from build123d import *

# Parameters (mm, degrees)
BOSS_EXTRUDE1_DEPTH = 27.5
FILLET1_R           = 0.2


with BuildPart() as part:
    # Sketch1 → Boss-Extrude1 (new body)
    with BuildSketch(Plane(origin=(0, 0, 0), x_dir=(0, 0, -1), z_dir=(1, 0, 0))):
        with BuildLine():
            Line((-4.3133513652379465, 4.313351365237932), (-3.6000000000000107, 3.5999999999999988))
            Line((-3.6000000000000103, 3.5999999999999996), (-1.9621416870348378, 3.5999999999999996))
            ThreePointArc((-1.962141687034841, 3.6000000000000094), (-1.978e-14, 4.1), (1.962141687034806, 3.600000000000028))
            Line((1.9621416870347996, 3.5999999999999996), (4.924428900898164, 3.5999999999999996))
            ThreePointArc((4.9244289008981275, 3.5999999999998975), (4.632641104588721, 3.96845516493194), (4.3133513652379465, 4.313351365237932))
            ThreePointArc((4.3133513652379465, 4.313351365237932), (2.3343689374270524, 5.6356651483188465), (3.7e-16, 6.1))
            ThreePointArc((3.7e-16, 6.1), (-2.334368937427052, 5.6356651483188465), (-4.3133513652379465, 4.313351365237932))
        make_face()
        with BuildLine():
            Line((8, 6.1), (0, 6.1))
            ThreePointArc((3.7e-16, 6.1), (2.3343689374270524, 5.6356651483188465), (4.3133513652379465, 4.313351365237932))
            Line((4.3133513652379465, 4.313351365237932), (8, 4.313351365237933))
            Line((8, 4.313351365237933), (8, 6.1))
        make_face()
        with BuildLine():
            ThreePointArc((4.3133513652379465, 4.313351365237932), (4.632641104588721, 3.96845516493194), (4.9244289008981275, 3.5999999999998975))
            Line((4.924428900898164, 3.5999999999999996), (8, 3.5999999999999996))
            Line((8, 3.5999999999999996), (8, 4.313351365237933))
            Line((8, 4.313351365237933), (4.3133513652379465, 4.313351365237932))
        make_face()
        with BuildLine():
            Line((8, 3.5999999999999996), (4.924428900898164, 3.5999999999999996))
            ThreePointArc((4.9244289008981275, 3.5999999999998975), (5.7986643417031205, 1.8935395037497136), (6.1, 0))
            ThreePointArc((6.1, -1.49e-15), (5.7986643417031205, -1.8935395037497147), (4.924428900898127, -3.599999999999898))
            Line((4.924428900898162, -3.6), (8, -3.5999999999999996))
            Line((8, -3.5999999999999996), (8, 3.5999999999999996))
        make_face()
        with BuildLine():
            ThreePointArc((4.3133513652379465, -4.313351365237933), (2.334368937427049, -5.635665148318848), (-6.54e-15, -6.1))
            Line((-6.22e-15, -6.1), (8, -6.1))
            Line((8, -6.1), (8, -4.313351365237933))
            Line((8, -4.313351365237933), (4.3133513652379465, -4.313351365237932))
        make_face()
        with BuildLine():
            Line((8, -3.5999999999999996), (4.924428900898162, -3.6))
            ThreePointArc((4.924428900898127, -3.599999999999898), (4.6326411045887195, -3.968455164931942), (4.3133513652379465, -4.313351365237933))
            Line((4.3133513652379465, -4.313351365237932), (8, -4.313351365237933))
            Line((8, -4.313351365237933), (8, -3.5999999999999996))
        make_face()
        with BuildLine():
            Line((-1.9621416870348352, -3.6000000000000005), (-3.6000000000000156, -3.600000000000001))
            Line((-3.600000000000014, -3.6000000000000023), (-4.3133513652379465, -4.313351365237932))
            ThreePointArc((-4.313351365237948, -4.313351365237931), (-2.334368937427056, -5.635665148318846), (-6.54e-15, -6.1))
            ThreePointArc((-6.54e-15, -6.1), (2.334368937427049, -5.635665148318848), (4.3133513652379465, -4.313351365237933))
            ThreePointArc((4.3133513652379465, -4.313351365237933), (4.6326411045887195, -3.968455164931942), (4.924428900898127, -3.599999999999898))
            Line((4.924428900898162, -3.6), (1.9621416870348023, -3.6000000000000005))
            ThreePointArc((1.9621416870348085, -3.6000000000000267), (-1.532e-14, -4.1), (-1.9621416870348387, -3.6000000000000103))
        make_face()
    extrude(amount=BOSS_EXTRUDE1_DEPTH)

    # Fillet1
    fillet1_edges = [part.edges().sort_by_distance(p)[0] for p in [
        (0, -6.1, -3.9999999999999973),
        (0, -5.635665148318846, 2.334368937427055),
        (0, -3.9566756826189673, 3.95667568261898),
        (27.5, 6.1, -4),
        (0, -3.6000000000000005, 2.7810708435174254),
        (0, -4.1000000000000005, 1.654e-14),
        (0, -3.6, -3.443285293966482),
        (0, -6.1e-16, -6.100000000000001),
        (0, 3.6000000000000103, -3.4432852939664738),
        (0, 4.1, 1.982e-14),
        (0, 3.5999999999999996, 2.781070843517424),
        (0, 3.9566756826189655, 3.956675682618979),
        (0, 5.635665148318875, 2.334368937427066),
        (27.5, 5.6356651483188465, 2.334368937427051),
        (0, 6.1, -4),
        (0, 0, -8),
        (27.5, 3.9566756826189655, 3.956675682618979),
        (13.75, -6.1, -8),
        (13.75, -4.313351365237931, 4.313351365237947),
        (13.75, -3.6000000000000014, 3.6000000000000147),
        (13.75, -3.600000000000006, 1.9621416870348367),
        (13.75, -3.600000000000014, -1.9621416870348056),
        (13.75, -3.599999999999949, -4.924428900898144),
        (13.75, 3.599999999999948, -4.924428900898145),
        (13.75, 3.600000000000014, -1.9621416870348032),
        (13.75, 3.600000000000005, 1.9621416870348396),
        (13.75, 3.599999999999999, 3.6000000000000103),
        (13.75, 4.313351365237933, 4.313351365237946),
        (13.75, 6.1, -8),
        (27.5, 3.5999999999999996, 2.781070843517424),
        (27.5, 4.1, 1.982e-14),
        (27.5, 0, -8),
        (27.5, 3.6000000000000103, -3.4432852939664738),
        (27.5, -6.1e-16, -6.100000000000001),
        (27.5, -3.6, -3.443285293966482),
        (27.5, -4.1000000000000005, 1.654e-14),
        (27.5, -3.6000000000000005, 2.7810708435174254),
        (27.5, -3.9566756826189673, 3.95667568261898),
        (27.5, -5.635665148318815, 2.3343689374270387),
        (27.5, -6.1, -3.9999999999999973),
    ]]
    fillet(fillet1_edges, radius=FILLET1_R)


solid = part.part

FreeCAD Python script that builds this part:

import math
import FreeCAD as App
import Part
import Sketcher

V = App.Vector
Q = App.Units.Quantity

doc = App.newDocument("Part")
body = doc.addObject("PartDesign::Body", "Body")

# Sketch on YZ plane
sketch1 = body.newObject("Sketcher::SketchObject", "Sketch")
sketch1.AttachmentSupport = (doc.getObject("YZ_Plane"), [""])
sketch1.MapMode = "FlatFace"
sketch1.addGeometry([
    Part.LineSegment(V(4.3, 4.3, 0), V(3.6, 3.6, 0)),  # 0
    Part.LineSegment(V(3.6, 3.6, 0), V(3.6, 2, 0)),  # 1
    Part.ArcOfCircle(Part.Circle(V(0, 0, 0), V(0, 0, 1), 4.1), math.radians(-29), math.radians(29)),  # 2
    Part.LineSegment(V(3.6, -2, 0), V(3.6, -4.9, 0)),  # 3
    Part.ArcOfCircle(Part.Circle(V(0, 0, 0), V(0, 0, 1), 6.1), math.radians(-126), math.radians(-54)),  # 4
    Part.LineSegment(V(-3.6, -4.9, 0), V(-3.6, -2, 0)),  # 5
    Part.ArcOfCircle(Part.Circle(V(0, 0, 0), V(0, 0, 1), 4.1), math.radians(151), math.radians(209)),  # 6
    Part.LineSegment(V(-3.6, 2, 0), V(-3.6, 3.6, 0)),  # 7
    Part.LineSegment(V(-3.6, 3.6, 0), V(-4.3, 4.3, 0)),  # 8
    Part.ArcOfCircle(Part.Circle(V(0, 0, 0), V(0, 0, 1), 6.1), math.radians(135), math.radians(180)),  # 9
    Part.LineSegment(V(-6.1, 0, 0), V(-6.1, -8, 0)),  # 10
    Part.LineSegment(V(-6.1, -8, 0), V(6.1, -8, 0)),  # 11
    Part.LineSegment(V(6.1, -8, 0), V(6.1, 0, 0)),  # 12
    Part.ArcOfCircle(Part.Circle(V(0, 0, 0), V(0, 0, 1), 6.1), math.radians(0), math.radians(45)),  # 13
], False)
sketch1.addConstraint([
    Sketcher.Constraint("Coincident", 0, 2, 1, 1),
    Sketcher.Constraint("Coincident", 1, 2, 2, 2),
    Sketcher.Constraint("Coincident", 2, 1, 3, 1),
    Sketcher.Constraint("Coincident", 3, 2, 4, 2),
    Sketcher.Constraint("Coincident", 4, 1, 5, 1),
    Sketcher.Constraint("Coincident", 5, 2, 6, 2),
    Sketcher.Constraint("Coincident", 6, 1, 7, 1),
    Sketcher.Constraint("Coincident", 7, 2, 8, 1),
    Sketcher.Constraint("Coincident", 8, 2, 9, 1),
    Sketcher.Constraint("Tangent", 9, 2, 10, 1),
    Sketcher.Constraint("Coincident", 10, 2, 11, 1),
    Sketcher.Constraint("Coincident", 11, 2, 12, 1),
    Sketcher.Constraint("Tangent", 12, 2, 13, 1),
    Sketcher.Constraint("Coincident", 13, 2, 0, 1),
    Sketcher.Constraint("Vertical", 1),
    Sketcher.Constraint("Vertical", 3),
    Sketcher.Constraint("Vertical", 5),
    Sketcher.Constraint("Vertical", 7),
    Sketcher.Constraint("Vertical", 10),
    Sketcher.Constraint("Horizontal", 11),
    Sketcher.Constraint("Vertical", 12),
    Sketcher.Constraint("Coincident", 2, 3, -1, 1),
    Sketcher.Constraint("Coincident", 4, 3, -1, 1),
    Sketcher.Constraint("Coincident", 6, 3, -1, 1),
    Sketcher.Constraint("Coincident", 9, 3, -1, 1),
    Sketcher.Constraint("Coincident", 13, 3, -1, 1),
    Sketcher.Constraint("Equal", 2, 6),
    Sketcher.Constraint("Equal", 4, 9),
    Sketcher.Constraint("Equal", 9, 13),
    Sketcher.Constraint("Symmetric", 0, 2, 7, 2, -2),
    Sketcher.Constraint("Perpendicular", 0, 8),
    Sketcher.Constraint("Horizontal", 3, 2, 4, 1),
    Sketcher.Constraint("Horizontal", 8, 2, 13, 2),
    Sketcher.Constraint("Vertical", 1, 2, 2, 1),
    Sketcher.Constraint("Radius", 2, Q("4.1 mm")),
    Sketcher.Constraint("Radius", 4, Q("6.1 mm")),
    Sketcher.Constraint("DistanceY", 10, 2, 10, 1, Q("8 mm")),
    Sketcher.Constraint("DistanceX", -1, 1, 0, 2, Q("3.6 mm")),
    Sketcher.Constraint("DistanceY", -1, 1, 0, 2, Q("3.6 mm")),
])
pad1 = body.newObject("PartDesign::Pad", "Pad")
pad1.Profile = sketch1
pad1.Length = 27.5
doc.recompute()

fillet = body.newObject("PartDesign::Fillet", "Fillet")
fillet.Base = (pad1, ["Edge1"])
fillet.UseAllEdges = True
fillet.Radius = 0.2

doc.recompute()
